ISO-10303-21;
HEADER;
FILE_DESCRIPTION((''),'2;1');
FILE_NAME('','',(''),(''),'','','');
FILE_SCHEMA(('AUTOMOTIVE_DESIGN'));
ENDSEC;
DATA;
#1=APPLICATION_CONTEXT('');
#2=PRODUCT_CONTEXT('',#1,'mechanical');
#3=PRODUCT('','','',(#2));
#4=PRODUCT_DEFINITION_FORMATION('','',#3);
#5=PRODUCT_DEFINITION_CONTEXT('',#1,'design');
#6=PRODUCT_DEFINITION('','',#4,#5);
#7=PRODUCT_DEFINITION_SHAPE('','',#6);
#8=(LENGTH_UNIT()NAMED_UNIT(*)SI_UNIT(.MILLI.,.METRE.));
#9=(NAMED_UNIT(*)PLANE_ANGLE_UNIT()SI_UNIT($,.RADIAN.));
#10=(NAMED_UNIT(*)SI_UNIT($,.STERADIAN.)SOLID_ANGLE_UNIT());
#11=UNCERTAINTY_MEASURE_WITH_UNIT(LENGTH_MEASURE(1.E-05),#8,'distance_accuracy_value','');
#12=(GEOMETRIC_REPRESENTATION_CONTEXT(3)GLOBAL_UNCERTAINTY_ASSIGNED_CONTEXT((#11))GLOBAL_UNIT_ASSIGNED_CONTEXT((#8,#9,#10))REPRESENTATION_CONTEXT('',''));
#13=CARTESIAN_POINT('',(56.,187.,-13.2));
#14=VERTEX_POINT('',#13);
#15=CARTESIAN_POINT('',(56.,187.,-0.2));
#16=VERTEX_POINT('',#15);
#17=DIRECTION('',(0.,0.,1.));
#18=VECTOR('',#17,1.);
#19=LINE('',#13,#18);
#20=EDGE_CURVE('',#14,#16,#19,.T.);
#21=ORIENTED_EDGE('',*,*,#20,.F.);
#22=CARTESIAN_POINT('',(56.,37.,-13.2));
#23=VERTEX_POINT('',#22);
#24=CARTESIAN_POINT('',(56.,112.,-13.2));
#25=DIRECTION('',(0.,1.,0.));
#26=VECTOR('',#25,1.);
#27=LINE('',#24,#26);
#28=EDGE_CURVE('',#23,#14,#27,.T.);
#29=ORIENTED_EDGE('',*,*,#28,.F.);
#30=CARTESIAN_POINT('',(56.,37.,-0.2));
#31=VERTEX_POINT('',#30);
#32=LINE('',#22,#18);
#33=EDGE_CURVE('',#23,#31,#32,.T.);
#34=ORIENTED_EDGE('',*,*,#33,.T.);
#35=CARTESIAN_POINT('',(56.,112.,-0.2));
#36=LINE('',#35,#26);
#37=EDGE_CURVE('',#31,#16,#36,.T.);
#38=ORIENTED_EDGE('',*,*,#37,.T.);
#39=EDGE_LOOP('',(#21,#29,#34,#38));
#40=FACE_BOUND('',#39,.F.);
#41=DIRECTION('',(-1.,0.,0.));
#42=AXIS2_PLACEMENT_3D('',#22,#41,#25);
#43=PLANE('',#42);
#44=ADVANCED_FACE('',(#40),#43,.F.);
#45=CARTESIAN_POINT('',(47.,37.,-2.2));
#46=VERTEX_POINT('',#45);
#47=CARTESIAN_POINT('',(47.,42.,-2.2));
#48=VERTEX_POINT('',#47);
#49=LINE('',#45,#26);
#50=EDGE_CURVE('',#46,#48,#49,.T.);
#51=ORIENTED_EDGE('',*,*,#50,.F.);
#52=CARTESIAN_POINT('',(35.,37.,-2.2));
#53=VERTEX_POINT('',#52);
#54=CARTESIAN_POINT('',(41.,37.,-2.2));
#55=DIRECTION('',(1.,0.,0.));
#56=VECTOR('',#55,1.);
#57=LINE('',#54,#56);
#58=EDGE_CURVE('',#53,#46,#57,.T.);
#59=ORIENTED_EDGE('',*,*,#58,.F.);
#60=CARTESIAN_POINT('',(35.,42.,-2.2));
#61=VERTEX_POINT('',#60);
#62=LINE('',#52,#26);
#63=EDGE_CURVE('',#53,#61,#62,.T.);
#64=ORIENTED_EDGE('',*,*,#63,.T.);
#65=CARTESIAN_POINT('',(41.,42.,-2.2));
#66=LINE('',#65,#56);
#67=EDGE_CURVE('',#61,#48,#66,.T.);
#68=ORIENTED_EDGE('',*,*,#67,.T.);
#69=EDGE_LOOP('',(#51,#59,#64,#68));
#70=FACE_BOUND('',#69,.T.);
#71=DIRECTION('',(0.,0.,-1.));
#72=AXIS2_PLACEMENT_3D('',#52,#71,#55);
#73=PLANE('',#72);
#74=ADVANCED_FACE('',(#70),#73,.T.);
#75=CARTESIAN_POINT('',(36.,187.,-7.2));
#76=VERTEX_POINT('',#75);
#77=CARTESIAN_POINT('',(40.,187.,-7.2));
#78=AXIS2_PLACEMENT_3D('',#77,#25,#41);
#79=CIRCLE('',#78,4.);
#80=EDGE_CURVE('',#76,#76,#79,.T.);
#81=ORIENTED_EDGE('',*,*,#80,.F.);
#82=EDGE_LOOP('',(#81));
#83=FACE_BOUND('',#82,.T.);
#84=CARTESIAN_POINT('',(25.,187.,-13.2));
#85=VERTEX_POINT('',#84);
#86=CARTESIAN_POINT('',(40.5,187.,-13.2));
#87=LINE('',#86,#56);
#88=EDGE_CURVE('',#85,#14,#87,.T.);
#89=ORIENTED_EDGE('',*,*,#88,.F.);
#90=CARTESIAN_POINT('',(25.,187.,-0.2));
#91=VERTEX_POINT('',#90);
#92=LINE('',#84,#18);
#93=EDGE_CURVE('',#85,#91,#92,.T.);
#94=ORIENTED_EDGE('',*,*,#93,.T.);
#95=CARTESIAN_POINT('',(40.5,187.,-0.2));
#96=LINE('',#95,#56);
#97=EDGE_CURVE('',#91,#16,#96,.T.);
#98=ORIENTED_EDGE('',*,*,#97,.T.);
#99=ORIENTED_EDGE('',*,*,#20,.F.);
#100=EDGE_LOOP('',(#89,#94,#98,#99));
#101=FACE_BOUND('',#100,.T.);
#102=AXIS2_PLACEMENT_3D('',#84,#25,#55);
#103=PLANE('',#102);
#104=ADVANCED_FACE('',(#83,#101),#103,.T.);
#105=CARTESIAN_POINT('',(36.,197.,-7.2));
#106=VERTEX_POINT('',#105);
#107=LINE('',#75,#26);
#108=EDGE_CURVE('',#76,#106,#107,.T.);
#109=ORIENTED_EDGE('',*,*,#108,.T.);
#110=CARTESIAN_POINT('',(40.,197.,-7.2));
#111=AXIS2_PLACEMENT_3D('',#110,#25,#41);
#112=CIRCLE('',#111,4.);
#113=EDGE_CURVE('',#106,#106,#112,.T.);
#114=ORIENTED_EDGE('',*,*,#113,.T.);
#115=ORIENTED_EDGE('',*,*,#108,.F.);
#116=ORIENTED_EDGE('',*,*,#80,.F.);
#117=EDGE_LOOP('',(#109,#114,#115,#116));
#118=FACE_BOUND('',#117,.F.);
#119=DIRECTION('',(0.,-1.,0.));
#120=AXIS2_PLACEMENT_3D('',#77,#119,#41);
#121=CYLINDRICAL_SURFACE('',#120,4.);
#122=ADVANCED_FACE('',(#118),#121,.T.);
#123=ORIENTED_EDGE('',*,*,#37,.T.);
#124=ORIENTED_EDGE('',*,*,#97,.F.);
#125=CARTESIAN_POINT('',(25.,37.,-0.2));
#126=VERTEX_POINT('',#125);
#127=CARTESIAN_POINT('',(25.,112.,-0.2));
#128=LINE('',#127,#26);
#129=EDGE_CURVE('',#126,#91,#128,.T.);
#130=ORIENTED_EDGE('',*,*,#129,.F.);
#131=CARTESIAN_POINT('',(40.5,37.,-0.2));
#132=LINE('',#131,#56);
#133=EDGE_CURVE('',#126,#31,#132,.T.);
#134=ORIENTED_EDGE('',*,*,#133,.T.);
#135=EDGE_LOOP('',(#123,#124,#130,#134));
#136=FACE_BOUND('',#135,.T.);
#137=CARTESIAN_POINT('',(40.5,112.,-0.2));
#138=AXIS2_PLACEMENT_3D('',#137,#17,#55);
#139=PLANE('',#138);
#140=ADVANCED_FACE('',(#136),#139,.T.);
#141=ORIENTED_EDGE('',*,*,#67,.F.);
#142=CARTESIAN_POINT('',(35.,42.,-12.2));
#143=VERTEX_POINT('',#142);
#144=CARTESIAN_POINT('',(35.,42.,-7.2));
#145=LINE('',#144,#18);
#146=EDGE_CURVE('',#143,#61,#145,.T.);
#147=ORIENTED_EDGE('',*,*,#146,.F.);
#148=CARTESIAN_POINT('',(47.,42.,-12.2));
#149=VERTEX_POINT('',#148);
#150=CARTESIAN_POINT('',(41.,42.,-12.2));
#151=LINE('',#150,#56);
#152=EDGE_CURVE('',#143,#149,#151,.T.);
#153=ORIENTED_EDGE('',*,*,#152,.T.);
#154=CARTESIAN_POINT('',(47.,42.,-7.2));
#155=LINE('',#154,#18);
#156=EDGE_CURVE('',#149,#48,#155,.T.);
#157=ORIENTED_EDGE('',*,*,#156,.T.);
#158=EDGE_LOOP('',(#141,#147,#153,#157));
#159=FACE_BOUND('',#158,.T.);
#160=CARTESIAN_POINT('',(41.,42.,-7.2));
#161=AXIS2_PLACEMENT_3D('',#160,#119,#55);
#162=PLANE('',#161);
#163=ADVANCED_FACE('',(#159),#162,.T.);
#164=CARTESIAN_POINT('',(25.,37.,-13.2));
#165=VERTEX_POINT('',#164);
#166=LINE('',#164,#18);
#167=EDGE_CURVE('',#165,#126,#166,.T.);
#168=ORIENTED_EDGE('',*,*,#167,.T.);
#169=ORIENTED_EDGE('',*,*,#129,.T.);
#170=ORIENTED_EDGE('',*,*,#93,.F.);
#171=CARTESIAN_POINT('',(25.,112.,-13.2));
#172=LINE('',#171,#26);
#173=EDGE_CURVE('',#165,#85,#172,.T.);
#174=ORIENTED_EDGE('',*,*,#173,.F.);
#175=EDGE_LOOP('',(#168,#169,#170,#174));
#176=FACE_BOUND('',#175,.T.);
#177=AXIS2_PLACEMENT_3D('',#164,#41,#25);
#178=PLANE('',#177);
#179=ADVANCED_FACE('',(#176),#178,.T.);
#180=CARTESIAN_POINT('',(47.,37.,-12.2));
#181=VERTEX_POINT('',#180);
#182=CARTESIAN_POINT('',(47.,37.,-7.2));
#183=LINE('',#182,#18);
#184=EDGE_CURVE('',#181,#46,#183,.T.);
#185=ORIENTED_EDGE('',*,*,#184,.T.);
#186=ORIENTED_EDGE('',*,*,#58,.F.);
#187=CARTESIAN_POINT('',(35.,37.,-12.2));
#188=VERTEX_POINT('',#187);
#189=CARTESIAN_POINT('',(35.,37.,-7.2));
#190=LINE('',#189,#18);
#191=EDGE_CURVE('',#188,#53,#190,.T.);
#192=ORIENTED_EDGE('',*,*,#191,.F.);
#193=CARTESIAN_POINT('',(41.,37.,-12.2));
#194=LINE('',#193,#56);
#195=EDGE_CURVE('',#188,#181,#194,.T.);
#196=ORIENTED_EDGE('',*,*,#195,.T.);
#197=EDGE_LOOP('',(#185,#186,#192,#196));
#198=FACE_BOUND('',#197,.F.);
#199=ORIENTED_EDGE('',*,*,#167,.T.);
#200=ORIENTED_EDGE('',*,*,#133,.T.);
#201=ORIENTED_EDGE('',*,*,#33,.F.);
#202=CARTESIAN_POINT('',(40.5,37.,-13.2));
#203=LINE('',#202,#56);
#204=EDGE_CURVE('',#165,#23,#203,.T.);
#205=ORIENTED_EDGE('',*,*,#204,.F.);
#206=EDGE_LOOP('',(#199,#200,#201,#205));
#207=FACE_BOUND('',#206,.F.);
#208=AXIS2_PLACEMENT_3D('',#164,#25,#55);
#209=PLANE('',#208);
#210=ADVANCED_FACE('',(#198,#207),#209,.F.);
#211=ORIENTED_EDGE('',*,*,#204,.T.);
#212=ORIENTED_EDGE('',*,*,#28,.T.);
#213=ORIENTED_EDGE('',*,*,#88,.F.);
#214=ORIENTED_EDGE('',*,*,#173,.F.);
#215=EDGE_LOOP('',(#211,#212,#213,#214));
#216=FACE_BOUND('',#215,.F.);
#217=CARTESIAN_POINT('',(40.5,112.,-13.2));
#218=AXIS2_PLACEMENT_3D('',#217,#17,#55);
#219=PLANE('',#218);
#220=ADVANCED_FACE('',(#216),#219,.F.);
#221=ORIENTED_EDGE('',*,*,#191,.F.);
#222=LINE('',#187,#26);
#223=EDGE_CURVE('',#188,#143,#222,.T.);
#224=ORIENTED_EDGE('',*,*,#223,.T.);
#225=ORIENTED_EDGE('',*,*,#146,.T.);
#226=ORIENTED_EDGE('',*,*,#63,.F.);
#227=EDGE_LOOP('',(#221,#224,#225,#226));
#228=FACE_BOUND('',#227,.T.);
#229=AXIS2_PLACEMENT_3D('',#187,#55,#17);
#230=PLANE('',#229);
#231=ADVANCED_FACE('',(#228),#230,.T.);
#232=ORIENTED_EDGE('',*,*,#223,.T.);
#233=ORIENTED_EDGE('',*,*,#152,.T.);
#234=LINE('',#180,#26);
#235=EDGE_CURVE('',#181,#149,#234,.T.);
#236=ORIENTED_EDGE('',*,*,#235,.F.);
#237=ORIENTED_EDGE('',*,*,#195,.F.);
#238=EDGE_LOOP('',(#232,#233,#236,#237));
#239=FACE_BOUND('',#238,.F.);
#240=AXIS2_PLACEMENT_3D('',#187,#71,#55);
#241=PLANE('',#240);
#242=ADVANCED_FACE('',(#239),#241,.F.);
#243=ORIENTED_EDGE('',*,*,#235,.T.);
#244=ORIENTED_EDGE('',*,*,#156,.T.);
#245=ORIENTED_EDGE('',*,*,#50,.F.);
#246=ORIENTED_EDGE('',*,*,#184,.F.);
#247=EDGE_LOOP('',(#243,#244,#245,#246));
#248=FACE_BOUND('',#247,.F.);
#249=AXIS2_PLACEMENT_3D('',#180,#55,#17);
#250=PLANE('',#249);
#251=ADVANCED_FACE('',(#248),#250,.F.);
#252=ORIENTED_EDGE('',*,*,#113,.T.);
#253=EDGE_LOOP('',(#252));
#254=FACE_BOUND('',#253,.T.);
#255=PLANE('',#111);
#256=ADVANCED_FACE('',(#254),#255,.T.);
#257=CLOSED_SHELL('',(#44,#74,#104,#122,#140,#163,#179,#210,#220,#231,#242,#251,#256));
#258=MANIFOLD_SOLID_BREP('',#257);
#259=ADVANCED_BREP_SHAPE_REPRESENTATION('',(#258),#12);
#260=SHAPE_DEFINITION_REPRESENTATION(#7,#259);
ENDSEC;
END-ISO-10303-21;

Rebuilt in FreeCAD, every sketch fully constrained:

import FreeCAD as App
import Part
import Sketcher
Q = App.Units.Quantity

doc = App.newDocument("Part")
body = doc.addObject("PartDesign::Body", "Body")

sketch1 = body.newObject("Sketcher::SketchObject", "Sketch")
sketch1.AttachmentSupport = (doc.getObject("XY_Plane"), [""])
sketch1.MapMode = "FlatFace"
sketch1.addGeometry(Part.LineSegment(App.Vector(0, 150, 0), App.Vector(0, 0, 0)), False)
sketch1.addGeometry(Part.LineSegment(App.Vector(0, 0, 0), App.Vector(31, 0, 0)), False)
sketch1.addGeometry(Part.LineSegment(App.Vector(31, 0, 0), App.Vector(31, 150, 0)), False)
sketch1.addGeometry(Part.LineSegment(App.Vector(31, 150, 0), App.Vector(0, 150, 0)), False)
sketch1.addConstraint(Sketcher.Constraint("Coincident", 0, 2, 1, 1))
sketch1.addConstraint(Sketcher.Constraint("Coincident", 1, 2, 2, 1))
sketch1.addConstraint(Sketcher.Constraint("Coincident", 2, 2, 3, 1))
sketch1.addConstraint(Sketcher.Constraint("Coincident", 3, 2, 0, 1))
sketch1.addConstraint(Sketcher.Constraint("Vertical", 0))
sketch1.addConstraint(Sketcher.Constraint("Horizontal", 1))
sketch1.addConstraint(Sketcher.Constraint("Vertical", 2))
sketch1.addConstraint(Sketcher.Constraint("Horizontal", 3))
sketch1.addConstraint(Sketcher.Constraint("Coincident", 0, 2, -1, 1))
sketch1.addConstraint(Sketcher.Constraint("DistanceX", 1, 1, 1, 2, Q("31 mm")))
sketch1.addConstraint(Sketcher.Constraint("DistanceY", 0, 2, 0, 1, Q("150 mm")))
pad1 = body.newObject("PartDesign::Pad", "Pad")
pad1.Profile = sketch1
pad1.Length = 13

sketch2 = body.newObject("Sketcher::SketchObject", "Sketch001")
sketch2.AttachmentSupport = (doc.getObject("XZ_Plane"), [""])
sketch2.MapMode = "FlatFace"
sketch2.addGeometry(Part.LineSegment(App.Vector(10, 11, 0), App.Vector(10, 1, 0)), False)
sketch2.addGeometry(Part.LineSegment(App.Vector(10, 1, 0), App.Vector(22, 1, 0)), False)
sketch2.addGeometry(Part.LineSegment(App.Vector(22, 1, 0), App.Vector(22, 11, 0)), False)
sketch2.addGeometry(Part.LineSegment(App.Vector(22, 11, 0), App.Vector(10, 11, 0)), False)
sketch2.addConstraint(Sketcher.Constraint("Coincident", 0, 2, 1, 1))
sketch2.addConstraint(Sketcher.Constraint("Coincident", 1, 2, 2, 1))
sketch2.addConstraint(Sketcher.Constraint("Coincident", 2, 2, 3, 1))
sketch2.addConstraint(Sketcher.Constraint("Coincident", 3, 2, 0, 1))
sketch2.addConstraint(Sketcher.Constraint("Vertical", 0))
sketch2.addConstraint(Sketcher.Constraint("Horizontal", 1))
sketch2.addConstraint(Sketcher.Constraint("Vertical", 2))
sketch2.addConstraint(Sketcher.Constraint("Horizontal", 3))
sketch2.addConstraint(Sketcher.Constraint("DistanceX", 1, 1, 1, 2, Q("12 mm")))
sketch2.addConstraint(Sketcher.Constraint("DistanceY", 0, 2, 0, 1, Q("10 mm")))
sketch2.addConstraint(Sketcher.Constraint("DistanceX", -1, 1, 0, 2, Q("10 mm")))
sketch2.addConstraint(Sketcher.Constraint("DistanceY", -1, 1, 0, 2, Q("1 mm")))
pocket1 = body.newObject("PartDesign::Pocket", "Pocket")
pocket1.Profile = sketch2
pocket1.Length = 5

sketch3 = body.newObject("Sketcher::SketchObject", "Sketch002")
sketch3.AttachmentSupport = (doc.getObject("XZ_Plane"), [""])
sketch3.MapMode = "FlatFace"
sketch3.AttachmentOffset = App.Placement(App.Vector(0, 0, -150), App.Rotation())
sketch3.addGeometry(Part.Circle(App.Vector(15, 6, 0), App.Vector(0, 0, 1), 4), False)
sketch3.addConstraint(Sketcher.Constraint("Diameter", 0, Q("8 mm")))
sketch3.addConstraint(Sketcher.Constraint("DistanceX", -1, 1, 0, 3, Q("15 mm")))
sketch3.addConstraint(Sketcher.Constraint("DistanceY", -1, 1, 0, 3, Q("6 mm")))
pad2 = body.newObject("PartDesign::Pad", "Pad001")
pad2.Profile = sketch3
pad2.Length = 10
pad2.Reversed = True
body2 = doc.addObject("PartDesign::Body", "Body001")
doc.recompute()

body.Placement = App.Placement(App.Vector(25, 37, -13.2), App.Rotation(App.Vector(0, 0, 1), 0))
boolean = body2.newObject("PartDesign::Boolean", "Boolean")
boolean.Type = "Fuse"
boolean.addObjects([body])

doc.recompute()
